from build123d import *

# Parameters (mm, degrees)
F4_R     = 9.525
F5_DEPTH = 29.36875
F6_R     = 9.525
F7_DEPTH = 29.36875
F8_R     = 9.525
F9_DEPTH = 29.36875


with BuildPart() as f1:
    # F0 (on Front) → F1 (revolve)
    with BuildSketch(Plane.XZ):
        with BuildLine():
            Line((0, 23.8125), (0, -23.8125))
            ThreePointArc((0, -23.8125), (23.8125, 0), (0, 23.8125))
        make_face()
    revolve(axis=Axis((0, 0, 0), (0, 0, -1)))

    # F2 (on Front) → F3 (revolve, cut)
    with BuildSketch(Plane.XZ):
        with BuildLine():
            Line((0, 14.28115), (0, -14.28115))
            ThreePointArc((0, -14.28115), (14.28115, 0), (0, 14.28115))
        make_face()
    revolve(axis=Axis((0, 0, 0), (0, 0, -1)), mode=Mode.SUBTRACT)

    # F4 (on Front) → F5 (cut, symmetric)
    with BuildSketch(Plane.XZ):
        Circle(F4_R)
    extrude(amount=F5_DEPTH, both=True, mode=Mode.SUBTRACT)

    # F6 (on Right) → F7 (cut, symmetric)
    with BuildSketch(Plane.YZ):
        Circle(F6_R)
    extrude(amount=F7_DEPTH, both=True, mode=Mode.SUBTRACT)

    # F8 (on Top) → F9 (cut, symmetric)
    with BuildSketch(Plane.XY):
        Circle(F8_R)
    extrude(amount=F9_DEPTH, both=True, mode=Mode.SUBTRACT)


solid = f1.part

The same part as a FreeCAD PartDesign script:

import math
import FreeCAD as App
import Part
import Sketcher
Q = App.Units.Quantity

doc = App.newDocument("Part")
body = doc.addObject("PartDesign::Body", "Body")

# Sketch on XZ plane
sketch1 = body.newObject("Sketcher::SketchObject", "Sketch")
sketch1.AttachmentSupport = (doc.getObject("XZ_Plane"), [""])
sketch1.MapMode = "FlatFace"
sketch1.addGeometry([
    Part.LineSegment(App.Vector(0, 24, 0), App.Vector(0, -24, 0)),
    Part.ArcOfCircle(Part.Circle(App.Vector(0, 0, 0), App.Vector(0, 0, 1), 24), math.radians(-90), math.radians(90)),
], False)
sketch1.addConstraint([
    Sketcher.Constraint("Coincident", 0, 1, 1, 2),
    Sketcher.Constraint("Coincident", 1, 1, 0, 2),
    Sketcher.Constraint("Vertical", 0),
    Sketcher.Constraint("Coincident", 1, 3, -1, 1),
    Sketcher.Constraint("PointOnObject", 0, 1, -2),
    Sketcher.Constraint("Radius", 1, Q("0.9375 in")),
])
revolution = body.newObject("PartDesign::Revolution", "Revolution")
revolution.Profile = sketch1
revolution.ReferenceAxis = (sketch1, ["V_Axis"])
revolution.Angle = 360

# Sketch on XZ plane
sketch2 = body.newObject("Sketcher::SketchObject", "Sketch001")
sketch2.AttachmentSupport = (doc.getObject("XZ_Plane"), [""])
sketch2.MapMode = "FlatFace"
sketch2.addGeometry([
    Part.LineSegment(App.Vector(0, 14, 0), App.Vector(0, -14, 0)),
    Part.ArcOfCircle(Part.Circle(App.Vector(0, 0, 0), App.Vector(0, 0, 1), 14), math.radians(-90), math.radians(90)),
], False)
sketch2.addConstraint([
    Sketcher.Constraint("Coincident", 0, 1, 1, 2),
    Sketcher.Constraint("Coincident", 1, 1, 0, 2),
    Sketcher.Constraint("Vertical", 0),
    Sketcher.Constraint("Coincident", 1, 3, -1, 1),
    Sketcher.Constraint("PointOnObject", 0, 1, -2),
    Sketcher.Constraint("DistanceY", 0, 2, 0, 1, Q("1.1245 in")),
])
groove = body.newObject("PartDesign::Groove", "Groove")
groove.Profile = sketch2
groove.ReferenceAxis = (sketch2, ["V_Axis"])
groove.Angle = 360

# Sketch on XZ plane
sketch3 = body.newObject("Sketcher::SketchObject", "Sketch002")
sketch3.AttachmentSupport = (doc.getObject("XZ_Plane"), [""])
sketch3.MapMode = "FlatFace"
sketch3.addGeometry(Part.Circle(App.Vector(0, 0, 0), App.Vector(0, 0, 1), 10), False)
sketch3.addConstraint([
    Sketcher.Constraint("Coincident", 0, 3, -1, 1),
    Sketcher.Constraint("Diameter", 0, Q("0.75 in")),
])
pocket1 = body.newObject("PartDesign::Pocket", "Pocket")
pocket1.Profile = sketch3
pocket1.Length = Q("2.3125 in")
pocket1.Midplane = True

# Sketch on YZ plane
sketch4 = body.newObject("Sketcher::SketchObject", "Sketch003")
sketch4.AttachmentSupport = (doc.getObject("YZ_Plane"), [""])
sketch4.MapMode = "FlatFace"
sketch4.addGeometry(Part.Circle(App.Vector(0, 0, 0), App.Vector(0, 0, 1), 10), False)
sketch4.addConstraint([
    Sketcher.Constraint("Coincident", 0, 3, -1, 1),
    Sketcher.Constraint("Diameter", 0, Q("0.75 in")),
])
pocket2 = body.newObject("PartDesign::Pocket", "Pocket001")
pocket2.Profile = sketch4
pocket2.Length = Q("2.3125 in")
pocket2.Midplane = True

# Sketch on XY plane
sketch5 = body.newObject("Sketcher::SketchObject", "Sketch004")
sketch5.AttachmentSupport = (doc.getObject("XY_Plane"), [""])
sketch5.MapMode = "FlatFace"
sketch5.addGeometry(Part.Circle(App.Vector(0, 0, 0), App.Vector(0, 0, 1), 10), False)
sketch5.addConstraint([
    Sketcher.Constraint("Coincident", 0, 3, -1, 1),
    Sketcher.Constraint("Diameter", 0, Q("0.75 in")),
])
pocket3 = body.newObject("PartDesign::Pocket", "Pocket002")
pocket3.Profile = sketch5
pocket3.Length = Q("2.3125 in")
pocket3.Midplane = True

doc.recompute()
